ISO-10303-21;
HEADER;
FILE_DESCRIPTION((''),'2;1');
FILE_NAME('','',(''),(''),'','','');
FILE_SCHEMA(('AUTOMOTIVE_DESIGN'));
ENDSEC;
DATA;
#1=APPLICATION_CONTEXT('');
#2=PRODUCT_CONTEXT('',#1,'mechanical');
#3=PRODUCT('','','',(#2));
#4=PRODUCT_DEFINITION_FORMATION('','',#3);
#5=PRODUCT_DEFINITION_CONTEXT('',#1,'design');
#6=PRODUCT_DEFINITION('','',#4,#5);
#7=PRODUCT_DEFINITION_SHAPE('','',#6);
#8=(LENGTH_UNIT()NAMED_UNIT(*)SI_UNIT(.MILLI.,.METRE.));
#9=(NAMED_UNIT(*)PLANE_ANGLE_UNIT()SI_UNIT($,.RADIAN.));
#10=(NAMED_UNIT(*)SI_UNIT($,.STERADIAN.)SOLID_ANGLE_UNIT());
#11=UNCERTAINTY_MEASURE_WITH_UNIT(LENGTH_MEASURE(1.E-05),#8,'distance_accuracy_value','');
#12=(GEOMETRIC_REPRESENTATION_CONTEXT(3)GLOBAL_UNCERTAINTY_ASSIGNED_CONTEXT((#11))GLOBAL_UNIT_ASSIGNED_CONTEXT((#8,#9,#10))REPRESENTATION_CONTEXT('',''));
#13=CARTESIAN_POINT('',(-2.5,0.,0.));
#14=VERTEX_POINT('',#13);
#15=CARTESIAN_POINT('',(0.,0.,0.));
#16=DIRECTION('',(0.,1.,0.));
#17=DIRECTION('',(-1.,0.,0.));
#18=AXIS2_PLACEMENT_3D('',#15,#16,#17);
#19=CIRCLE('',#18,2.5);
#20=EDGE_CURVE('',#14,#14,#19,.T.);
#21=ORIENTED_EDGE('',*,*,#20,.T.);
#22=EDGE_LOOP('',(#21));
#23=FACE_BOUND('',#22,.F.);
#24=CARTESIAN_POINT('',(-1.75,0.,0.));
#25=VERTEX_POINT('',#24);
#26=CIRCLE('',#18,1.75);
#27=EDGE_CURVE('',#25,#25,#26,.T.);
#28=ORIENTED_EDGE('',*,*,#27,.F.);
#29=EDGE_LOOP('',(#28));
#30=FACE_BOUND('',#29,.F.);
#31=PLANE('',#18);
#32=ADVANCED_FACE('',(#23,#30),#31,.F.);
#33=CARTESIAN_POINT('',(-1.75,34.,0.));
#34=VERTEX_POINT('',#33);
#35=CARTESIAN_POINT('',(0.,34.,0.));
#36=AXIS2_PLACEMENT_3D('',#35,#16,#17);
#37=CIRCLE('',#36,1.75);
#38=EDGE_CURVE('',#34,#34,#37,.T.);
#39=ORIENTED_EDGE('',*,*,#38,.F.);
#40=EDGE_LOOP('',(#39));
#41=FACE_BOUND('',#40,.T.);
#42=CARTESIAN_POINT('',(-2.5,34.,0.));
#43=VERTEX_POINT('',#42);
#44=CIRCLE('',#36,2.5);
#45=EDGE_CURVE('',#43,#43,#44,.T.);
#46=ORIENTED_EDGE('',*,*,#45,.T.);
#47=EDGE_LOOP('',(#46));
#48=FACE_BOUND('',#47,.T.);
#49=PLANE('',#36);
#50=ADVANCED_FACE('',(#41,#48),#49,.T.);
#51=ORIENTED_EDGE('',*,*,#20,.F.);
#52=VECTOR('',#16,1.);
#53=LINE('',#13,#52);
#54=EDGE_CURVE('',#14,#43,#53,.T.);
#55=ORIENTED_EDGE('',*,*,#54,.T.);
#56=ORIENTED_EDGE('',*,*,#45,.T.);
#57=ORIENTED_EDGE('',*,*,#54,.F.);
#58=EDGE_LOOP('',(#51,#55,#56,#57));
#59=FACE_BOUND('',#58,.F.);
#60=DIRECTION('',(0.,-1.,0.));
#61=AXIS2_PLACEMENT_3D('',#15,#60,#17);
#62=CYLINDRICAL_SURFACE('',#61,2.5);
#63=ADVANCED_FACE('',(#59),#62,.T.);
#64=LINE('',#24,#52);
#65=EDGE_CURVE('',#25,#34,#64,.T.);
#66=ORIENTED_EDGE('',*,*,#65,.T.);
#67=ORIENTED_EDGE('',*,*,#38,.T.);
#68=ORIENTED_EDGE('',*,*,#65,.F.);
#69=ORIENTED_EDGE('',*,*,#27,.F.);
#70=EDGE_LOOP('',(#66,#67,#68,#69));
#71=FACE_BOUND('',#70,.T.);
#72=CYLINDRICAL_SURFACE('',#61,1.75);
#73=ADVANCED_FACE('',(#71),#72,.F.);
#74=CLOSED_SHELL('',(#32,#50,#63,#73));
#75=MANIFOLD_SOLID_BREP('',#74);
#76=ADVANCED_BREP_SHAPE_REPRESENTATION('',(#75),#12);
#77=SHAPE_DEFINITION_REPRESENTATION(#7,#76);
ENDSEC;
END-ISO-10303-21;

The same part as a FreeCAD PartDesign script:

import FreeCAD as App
import Part
import Sketcher
from FreeCAD import Vector

doc = App.newDocument("Part")
body = doc.addObject("PartDesign::Body", "Body")

# Sketch on XZ plane
sketch1 = body.newObject("Sketcher::SketchObject", "Sketch")
sketch1.AttachmentSupport = (doc.getObject("XZ_Plane"), [""])
sketch1.MapMode = "FlatFace"
sketch1.addGeometry([
    Part.Circle(Vector(0, 0, 0), Vector(0, 0, 1), 2.5),
    Part.Circle(Vector(0, 0, 0), Vector(0, 0, 1), 1.8),
], False)
sketch1.addConstraint([
    Sketcher.Constraint("Coincident", 0, 3, -1, 1),
    Sketcher.Constraint("Coincident", 1, 3, -1, 1),
    Sketcher.Constraint("Diameter", 0, 5.0),
    Sketcher.Constraint("Diameter", 1, 3.5),
])
pad1 = body.newObject("PartDesign::Pad", "Pad")
pad1.Profile = sketch1
pad1.Length = 34
pad1.Reversed = True

doc.recompute()
